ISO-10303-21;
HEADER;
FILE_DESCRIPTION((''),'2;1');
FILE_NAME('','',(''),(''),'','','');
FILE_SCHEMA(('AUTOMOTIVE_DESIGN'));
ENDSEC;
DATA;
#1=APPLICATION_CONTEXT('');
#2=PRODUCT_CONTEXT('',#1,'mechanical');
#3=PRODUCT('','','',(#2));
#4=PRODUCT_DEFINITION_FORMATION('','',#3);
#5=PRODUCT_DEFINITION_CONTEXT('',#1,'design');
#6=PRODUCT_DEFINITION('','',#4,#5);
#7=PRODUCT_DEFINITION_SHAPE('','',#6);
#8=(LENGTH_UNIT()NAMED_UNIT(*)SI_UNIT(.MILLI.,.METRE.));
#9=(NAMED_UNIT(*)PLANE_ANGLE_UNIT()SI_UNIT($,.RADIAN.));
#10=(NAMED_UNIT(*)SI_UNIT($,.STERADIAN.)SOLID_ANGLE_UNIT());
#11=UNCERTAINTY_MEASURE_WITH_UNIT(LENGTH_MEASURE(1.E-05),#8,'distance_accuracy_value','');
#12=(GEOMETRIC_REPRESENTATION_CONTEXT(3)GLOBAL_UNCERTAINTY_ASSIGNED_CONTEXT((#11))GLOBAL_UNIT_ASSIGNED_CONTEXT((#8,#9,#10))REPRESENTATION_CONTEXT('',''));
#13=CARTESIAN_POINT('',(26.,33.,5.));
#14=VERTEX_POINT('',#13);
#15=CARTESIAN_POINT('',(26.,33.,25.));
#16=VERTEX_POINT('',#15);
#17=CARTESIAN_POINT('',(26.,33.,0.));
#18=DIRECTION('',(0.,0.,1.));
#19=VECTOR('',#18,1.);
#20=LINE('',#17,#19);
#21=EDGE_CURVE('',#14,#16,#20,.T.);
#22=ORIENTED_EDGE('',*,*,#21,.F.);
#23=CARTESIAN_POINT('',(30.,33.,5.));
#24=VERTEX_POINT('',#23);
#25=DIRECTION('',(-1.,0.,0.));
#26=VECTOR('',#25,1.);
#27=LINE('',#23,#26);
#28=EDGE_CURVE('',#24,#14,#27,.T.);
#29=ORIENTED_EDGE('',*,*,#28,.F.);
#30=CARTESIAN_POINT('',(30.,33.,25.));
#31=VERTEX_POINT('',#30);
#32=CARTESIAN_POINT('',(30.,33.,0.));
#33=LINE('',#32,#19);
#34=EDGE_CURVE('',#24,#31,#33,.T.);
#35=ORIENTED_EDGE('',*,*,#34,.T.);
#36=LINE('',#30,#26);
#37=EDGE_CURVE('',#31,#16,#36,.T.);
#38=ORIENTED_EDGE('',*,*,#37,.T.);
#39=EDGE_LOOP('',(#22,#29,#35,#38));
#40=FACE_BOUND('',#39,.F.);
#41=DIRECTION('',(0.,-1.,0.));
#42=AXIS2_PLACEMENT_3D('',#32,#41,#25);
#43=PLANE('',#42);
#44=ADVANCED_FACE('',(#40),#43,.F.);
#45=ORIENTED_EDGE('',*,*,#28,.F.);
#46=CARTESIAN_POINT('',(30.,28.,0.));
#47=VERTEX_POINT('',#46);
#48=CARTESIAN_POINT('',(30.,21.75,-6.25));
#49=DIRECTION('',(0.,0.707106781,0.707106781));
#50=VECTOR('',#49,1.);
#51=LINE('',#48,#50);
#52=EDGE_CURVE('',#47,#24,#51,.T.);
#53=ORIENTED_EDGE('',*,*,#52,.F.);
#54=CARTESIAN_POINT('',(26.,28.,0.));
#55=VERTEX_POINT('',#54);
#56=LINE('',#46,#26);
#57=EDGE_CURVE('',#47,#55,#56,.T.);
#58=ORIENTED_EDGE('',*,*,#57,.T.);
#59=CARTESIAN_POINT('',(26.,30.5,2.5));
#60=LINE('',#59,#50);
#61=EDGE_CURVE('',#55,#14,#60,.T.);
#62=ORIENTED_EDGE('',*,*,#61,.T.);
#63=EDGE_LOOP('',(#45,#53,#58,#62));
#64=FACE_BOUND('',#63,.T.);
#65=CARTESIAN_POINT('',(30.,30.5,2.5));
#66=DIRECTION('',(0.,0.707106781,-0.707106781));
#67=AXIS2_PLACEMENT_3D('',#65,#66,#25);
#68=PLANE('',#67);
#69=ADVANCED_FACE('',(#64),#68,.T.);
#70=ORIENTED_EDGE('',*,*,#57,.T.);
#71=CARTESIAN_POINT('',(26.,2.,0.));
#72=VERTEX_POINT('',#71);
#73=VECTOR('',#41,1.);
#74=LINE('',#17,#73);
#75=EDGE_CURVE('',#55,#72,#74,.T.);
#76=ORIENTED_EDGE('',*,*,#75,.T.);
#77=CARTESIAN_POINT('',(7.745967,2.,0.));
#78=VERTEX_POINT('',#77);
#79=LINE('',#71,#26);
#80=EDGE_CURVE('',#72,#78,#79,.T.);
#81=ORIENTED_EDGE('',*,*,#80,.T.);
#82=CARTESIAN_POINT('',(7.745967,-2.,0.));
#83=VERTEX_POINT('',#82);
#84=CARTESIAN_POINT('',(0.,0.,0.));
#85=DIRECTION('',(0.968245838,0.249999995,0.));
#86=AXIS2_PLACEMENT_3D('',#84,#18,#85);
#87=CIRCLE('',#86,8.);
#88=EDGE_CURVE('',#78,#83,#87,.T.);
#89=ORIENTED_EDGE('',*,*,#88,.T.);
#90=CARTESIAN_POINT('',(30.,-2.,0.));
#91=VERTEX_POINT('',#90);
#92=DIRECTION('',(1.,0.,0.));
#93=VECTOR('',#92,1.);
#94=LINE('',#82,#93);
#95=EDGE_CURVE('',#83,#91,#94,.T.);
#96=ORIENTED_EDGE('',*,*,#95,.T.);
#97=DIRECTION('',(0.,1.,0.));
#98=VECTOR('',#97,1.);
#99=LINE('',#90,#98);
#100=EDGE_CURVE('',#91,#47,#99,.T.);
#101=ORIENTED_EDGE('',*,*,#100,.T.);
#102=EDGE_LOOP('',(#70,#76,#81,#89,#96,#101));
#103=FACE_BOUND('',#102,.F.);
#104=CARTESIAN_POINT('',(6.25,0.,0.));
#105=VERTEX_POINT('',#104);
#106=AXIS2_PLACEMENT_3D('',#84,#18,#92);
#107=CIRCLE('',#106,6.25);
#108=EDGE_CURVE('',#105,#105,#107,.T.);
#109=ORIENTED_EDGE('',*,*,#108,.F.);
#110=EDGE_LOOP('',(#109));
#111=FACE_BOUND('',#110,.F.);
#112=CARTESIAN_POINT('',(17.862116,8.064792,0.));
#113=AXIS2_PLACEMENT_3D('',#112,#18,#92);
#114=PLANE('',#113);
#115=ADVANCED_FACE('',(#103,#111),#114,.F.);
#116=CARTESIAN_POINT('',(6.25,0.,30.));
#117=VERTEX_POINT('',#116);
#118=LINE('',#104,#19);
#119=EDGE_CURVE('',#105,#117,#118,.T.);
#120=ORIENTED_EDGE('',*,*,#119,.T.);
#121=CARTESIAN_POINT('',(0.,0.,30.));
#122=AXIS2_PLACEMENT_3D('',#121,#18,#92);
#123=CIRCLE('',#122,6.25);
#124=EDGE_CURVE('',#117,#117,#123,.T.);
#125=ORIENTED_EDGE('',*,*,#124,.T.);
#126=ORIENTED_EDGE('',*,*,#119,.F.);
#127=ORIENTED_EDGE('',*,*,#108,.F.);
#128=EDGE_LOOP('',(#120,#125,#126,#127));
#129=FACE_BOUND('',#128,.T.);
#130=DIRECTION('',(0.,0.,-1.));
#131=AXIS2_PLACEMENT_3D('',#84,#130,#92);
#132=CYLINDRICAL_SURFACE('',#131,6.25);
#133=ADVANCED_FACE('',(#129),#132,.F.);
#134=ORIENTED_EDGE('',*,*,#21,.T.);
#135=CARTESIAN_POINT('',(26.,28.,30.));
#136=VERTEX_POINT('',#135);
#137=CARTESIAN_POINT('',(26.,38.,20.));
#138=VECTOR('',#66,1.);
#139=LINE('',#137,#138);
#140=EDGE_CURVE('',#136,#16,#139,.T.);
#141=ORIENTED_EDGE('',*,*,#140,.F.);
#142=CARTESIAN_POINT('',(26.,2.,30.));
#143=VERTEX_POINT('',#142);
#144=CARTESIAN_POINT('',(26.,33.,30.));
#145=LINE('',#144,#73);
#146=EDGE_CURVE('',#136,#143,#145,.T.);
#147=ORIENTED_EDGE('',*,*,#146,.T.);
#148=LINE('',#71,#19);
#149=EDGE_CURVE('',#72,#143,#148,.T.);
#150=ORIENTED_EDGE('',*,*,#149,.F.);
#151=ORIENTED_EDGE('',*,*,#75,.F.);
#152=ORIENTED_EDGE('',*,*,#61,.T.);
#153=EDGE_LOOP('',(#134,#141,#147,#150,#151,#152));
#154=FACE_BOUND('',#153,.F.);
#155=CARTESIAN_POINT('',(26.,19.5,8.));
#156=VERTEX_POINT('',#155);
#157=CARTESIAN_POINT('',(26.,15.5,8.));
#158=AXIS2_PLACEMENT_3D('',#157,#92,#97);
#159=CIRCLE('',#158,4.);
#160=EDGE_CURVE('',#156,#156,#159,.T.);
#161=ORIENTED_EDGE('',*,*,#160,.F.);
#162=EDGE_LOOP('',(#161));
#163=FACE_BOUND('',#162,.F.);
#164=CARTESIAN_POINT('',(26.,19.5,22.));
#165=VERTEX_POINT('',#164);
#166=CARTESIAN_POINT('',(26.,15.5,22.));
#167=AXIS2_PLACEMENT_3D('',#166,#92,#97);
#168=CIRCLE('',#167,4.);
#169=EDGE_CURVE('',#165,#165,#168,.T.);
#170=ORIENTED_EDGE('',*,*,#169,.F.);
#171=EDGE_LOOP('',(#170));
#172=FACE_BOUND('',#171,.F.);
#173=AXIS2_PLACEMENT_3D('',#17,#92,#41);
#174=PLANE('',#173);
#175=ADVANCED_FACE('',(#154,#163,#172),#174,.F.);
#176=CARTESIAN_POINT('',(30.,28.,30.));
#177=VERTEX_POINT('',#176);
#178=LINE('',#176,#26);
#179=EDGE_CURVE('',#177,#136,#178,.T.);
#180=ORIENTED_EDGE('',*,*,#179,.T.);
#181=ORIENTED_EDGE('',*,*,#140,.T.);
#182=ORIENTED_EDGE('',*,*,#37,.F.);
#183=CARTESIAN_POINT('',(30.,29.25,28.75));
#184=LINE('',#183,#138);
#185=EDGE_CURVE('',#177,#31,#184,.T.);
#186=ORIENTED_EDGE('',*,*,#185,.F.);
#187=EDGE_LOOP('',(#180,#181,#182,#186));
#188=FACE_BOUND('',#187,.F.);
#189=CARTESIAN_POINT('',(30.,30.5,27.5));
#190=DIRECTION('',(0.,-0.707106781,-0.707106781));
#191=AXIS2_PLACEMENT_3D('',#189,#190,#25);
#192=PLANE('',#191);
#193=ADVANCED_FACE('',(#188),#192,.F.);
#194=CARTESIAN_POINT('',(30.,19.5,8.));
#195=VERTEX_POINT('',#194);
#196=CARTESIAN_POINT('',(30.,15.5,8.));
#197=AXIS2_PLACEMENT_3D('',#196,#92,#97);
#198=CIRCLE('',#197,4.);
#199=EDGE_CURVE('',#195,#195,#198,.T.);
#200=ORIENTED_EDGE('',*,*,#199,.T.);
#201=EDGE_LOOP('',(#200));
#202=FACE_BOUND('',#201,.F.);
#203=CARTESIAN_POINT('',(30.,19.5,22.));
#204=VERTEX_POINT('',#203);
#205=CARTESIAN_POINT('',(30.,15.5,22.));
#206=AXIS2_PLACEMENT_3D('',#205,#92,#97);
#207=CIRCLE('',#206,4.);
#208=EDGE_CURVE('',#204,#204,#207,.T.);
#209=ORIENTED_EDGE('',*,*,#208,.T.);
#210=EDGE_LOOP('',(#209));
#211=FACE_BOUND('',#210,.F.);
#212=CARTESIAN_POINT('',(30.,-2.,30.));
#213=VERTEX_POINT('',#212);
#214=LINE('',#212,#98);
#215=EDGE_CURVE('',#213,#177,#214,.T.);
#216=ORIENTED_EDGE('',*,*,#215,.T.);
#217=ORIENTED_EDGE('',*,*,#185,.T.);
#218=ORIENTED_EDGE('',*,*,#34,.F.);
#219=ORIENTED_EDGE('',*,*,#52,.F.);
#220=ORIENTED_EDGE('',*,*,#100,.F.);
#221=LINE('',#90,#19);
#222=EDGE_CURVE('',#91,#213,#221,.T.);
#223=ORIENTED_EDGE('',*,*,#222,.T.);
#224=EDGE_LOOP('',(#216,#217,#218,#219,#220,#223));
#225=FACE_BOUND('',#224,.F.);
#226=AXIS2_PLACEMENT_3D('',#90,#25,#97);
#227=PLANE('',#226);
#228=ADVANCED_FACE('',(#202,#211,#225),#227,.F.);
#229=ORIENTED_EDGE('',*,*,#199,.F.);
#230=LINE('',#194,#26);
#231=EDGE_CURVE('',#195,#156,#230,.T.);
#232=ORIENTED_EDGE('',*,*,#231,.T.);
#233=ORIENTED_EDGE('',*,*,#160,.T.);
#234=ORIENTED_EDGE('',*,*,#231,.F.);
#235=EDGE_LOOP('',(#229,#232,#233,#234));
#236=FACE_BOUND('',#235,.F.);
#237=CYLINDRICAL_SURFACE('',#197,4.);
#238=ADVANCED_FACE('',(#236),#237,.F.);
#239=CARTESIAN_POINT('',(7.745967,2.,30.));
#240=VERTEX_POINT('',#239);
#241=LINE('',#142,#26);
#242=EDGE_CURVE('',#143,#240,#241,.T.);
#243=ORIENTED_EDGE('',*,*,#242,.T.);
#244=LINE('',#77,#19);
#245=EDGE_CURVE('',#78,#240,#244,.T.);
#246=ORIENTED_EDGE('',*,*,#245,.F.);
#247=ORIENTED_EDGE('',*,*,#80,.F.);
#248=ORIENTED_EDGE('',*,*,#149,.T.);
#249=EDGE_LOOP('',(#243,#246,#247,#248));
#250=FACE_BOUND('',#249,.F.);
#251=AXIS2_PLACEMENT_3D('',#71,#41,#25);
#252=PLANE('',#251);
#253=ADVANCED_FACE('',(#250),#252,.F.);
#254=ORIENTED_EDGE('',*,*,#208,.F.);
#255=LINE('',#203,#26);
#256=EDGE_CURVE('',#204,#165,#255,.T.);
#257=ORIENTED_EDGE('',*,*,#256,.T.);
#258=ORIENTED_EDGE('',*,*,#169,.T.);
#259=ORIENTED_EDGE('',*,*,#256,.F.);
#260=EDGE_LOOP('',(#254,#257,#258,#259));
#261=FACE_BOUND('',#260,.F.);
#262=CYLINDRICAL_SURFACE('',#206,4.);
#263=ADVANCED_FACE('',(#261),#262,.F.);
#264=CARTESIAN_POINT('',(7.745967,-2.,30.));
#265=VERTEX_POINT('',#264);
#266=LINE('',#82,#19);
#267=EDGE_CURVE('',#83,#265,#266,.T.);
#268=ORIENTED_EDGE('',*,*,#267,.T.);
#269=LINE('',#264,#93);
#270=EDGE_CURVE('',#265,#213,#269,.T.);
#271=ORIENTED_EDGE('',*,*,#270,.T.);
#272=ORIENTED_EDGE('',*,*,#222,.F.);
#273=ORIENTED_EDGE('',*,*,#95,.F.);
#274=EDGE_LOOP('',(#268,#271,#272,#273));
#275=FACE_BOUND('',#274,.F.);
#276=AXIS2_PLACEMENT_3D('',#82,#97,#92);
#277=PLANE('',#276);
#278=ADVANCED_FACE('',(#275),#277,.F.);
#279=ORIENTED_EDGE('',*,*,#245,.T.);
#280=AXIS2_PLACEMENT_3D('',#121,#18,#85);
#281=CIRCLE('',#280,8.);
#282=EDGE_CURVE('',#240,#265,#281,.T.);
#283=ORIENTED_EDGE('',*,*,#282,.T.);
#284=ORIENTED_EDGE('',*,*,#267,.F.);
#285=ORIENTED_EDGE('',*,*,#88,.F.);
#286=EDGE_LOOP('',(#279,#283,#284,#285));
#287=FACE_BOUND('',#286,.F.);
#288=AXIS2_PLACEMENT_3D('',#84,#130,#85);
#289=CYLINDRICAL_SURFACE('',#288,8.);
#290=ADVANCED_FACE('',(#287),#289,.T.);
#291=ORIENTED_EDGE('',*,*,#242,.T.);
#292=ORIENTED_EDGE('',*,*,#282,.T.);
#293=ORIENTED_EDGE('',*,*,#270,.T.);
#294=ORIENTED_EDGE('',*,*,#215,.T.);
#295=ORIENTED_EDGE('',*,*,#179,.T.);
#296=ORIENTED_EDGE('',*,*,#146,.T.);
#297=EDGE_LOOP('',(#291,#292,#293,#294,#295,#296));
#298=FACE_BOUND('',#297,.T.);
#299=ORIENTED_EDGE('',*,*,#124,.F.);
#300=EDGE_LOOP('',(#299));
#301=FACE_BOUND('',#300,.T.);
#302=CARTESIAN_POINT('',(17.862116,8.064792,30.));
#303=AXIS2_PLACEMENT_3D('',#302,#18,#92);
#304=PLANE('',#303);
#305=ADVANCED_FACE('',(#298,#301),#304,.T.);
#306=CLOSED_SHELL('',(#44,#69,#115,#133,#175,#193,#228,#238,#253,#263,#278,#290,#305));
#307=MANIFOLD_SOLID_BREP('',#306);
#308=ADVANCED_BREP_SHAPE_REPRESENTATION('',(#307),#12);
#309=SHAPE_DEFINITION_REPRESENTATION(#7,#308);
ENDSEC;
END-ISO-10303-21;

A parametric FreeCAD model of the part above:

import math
import FreeCAD as App
import Part
import Sketcher

V = App.Vector


def edges_at(feature, points):
    """Names of the edges that pass closest to the given points."""
    edges = feature.Shape.Edges
    near = lambda p: min(range(len(edges)), key=lambda i: edges[i].distToShape(Part.Vertex(*p))[0])
    return sorted({f"Edge{near(p) + 1}" for p in points})

doc = App.newDocument("Part")
body = doc.addObject("PartDesign::Body", "Body")

# Sketch on XY plane
sketch1 = body.newObject("Sketcher::SketchObject", "Sketch")
sketch1.AttachmentSupport = (doc.getObject("XY_Plane"), [""])
sketch1.MapMode = "FlatFace"
sketch1.addGeometry(Part.LineSegment(V(26, 2, 0), V(7.7, 2, 0)), False)
sketch1.addGeometry(Part.ArcOfCircle(Part.Circle(V(0, 0, 0), V(0, 0, 1), 8), math.radians(14), math.radians(346)), False)
sketch1.addGeometry(Part.LineSegment(V(7.7, -2, 0), V(30, -2, 0)), False)
sketch1.addGeometry(Part.LineSegment(V(30, -2, 0), V(30, 33, 0)), False)
sketch1.addGeometry(Part.LineSegment(V(30, 33, 0), V(26, 33, 0)), False)
sketch1.addGeometry(Part.LineSegment(V(26, 33, 0), V(26, 2, 0)), False)
sketch1.addGeometry(Part.Circle(V(0, 0, 0), V(0, 0, 1), 6.2), False)
sketch1.addConstraint(Sketcher.Constraint("Coincident", 0, 2, 1, 1))
sketch1.addConstraint(Sketcher.Constraint("Coincident", 1, 2, 2, 1))
sketch1.addConstraint(Sketcher.Constraint("Coincident", 2, 2, 3, 1))
sketch1.addConstraint(Sketcher.Constraint("Coincident", 3, 2, 4, 1))
sketch1.addConstraint(Sketcher.Constraint("Coincident", 4, 2, 5, 1))
sketch1.addConstraint(Sketcher.Constraint("Coincident", 5, 2, 0, 1))
sketch1.addConstraint(Sketcher.Constraint("Horizontal", 0))
sketch1.addConstraint(Sketcher.Constraint("Horizontal", 2))
sketch1.addConstraint(Sketcher.Constraint("Vertical", 3))
sketch1.addConstraint(Sketcher.Constraint("Horizontal", 4))
sketch1.addConstraint(Sketcher.Constraint("Vertical", 5))
sketch1.addConstraint(Sketcher.Constraint("Coincident", 1, 3, -1, 1))
sketch1.addConstraint(Sketcher.Constraint("Coincident", 6, 3, -1, 1))
sketch1.addConstraint(Sketcher.Constraint("Vertical", 0, 2, 1, 2))
sketch1.addConstraint(Sketcher.Constraint("Radius", 1, 8.0))
sketch1.addConstraint(Sketcher.Constraint("Diameter", 6, 12.5))
sketch1.addConstraint(Sketcher.Constraint("DistanceX", 4, 2, 4, 1, 4.0))
sketch1.addConstraint(Sketcher.Constraint("DistanceY", 3, 1, 3, 2, 35.0))
sketch1.addConstraint(Sketcher.Constraint("DistanceY", 5, 2, 5, 1, 31.0))
sketch1.addConstraint(Sketcher.Constraint("DistanceX", -1, 1, 2, 2, 30.0))
pad1 = body.newObject("PartDesign::Pad", "Pad")
pad1.Profile = sketch1
pad1.Length = 30

# Sketch on YZ plane
sketch2 = body.newObject("Sketcher::SketchObject", "Sketch001")
sketch2.AttachmentSupport = (doc.getObject("YZ_Plane"), [""])
sketch2.MapMode = "FlatFace"
sketch2.AttachmentOffset = App.Placement(V(0, 0, 30), App.Rotation())
sketch2.addGeometry(Part.Circle(V(15.5, 22, 0), V(0, 0, 1), 4), False)
sketch2.addGeometry(Part.Circle(V(15.5, 8, 0), V(0, 0, 1), 4), False)
sketch2.addConstraint(Sketcher.Constraint("Equal", 0, 1))
sketch2.addConstraint(Sketcher.Constraint("Vertical", 0, 3, 1, 3))
sketch2.addConstraint(Sketcher.Constraint("Diameter", 0, 8.0))
sketch2.addConstraint(Sketcher.Constraint("DistanceY", -1, 1, 0, 3, 22.0))
sketch2.addConstraint(Sketcher.Constraint("DistanceY", -1, 1, 1, 3, 8.0))
sketch2.addConstraint(Sketcher.Constraint("DistanceX", -1, 1, 0, 3, 15.5))
pocket1 = body.newObject("PartDesign::Pocket", "Pocket")
pocket1.Profile = sketch2
pocket1.Type = "ThroughAll"
doc.recompute()

chamfer = body.newObject("PartDesign::Chamfer", "Chamfer")
chamfer.Base = (pocket1, edges_at(pocket1, [(28, 33, 30), (28, 33, 0)]))
chamfer.Size = 5

doc.recompute()
